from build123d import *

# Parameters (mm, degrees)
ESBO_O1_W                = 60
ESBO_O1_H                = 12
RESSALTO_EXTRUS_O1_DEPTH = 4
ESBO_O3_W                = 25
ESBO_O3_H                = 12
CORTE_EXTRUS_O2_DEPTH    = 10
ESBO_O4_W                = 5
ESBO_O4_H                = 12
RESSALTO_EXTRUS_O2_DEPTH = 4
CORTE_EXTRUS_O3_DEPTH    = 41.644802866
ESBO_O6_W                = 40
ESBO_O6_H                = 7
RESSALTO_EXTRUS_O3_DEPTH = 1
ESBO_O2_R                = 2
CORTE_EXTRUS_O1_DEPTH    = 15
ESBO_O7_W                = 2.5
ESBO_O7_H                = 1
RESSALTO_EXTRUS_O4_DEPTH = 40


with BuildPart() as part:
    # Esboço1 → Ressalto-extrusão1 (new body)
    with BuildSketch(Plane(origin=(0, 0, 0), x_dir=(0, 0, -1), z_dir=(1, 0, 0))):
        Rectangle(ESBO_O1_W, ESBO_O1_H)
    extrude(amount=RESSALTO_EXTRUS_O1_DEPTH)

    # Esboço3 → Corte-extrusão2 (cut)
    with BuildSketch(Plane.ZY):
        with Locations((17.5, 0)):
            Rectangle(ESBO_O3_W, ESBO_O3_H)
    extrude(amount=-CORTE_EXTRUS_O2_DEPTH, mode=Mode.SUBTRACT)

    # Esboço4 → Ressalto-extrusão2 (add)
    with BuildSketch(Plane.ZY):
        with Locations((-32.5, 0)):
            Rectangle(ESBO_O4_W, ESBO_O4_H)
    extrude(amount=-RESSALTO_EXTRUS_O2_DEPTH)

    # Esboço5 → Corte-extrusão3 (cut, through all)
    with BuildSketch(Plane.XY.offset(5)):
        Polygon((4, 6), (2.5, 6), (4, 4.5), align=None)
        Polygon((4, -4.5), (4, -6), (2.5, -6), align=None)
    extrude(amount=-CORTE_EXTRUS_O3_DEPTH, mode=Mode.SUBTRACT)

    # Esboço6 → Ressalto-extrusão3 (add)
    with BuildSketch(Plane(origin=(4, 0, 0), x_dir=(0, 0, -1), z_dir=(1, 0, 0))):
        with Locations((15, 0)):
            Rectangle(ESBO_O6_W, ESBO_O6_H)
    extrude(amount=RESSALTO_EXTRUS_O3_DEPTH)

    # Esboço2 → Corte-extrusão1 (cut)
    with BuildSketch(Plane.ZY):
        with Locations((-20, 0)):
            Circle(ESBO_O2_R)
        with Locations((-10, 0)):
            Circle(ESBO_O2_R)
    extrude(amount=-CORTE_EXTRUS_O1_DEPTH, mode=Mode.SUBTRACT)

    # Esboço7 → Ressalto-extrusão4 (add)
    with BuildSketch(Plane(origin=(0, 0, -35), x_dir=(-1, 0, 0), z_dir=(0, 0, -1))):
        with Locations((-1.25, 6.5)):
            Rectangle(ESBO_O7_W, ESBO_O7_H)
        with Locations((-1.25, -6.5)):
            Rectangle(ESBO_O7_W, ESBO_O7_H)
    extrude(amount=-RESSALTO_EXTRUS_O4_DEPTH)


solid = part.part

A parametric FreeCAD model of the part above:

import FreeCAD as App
import Part
import Sketcher
from FreeCAD import Vector

doc = App.newDocument("Part")
body = doc.addObject("PartDesign::Body", "Body")

# Sketch on YZ plane
sketch1 = doc.addObject("Sketcher::SketchObject", "Sketch")
body.addObject(sketch1)
sketch1.AttachmentSupport = (doc.YZ_Plane, [""])
sketch1.MapMode = "FlatFace"
sketch1.addGeometry([
    Part.LineSegment(Vector(6, 30, 0), Vector(-6, 30, 0)),
    Part.LineSegment(Vector(-6, 30, 0), Vector(-6, -30, 0)),
    Part.LineSegment(Vector(-6, -30, 0), Vector(6, -30, 0)),
    Part.LineSegment(Vector(6, -30, 0), Vector(6, 30, 0)),
], False)
sketch1.addConstraint([
    Sketcher.Constraint("Coincident", 0, 2, 1, 1),
    Sketcher.Constraint("Coincident", 1, 2, 2, 1),
    Sketcher.Constraint("Coincident", 2, 2, 3, 1),
    Sketcher.Constraint("Coincident", 3, 2, 0, 1),
    Sketcher.Constraint("Horizontal", 0),
    Sketcher.Constraint("Vertical", 1),
    Sketcher.Constraint("Horizontal", 2),
    Sketcher.Constraint("Vertical", 3),
    Sketcher.Constraint("Symmetric", 0, 2, 2, 2, -1, 1),
    Sketcher.Constraint("DistanceX", 0, 2, 0, 1, 12.0),
    Sketcher.Constraint("DistanceY", 1, 2, 1, 1, 60.0),
])
pad1 = doc.addObject("PartDesign::Pad", "Pad")
body.addObject(pad1)
pad1.Profile = sketch1
pad1.Length = 4

# Sketch on YZ plane
sketch2 = doc.addObject("Sketcher::SketchObject", "Sketch001")
body.addObject(sketch2)
sketch2.AttachmentSupport = (doc.YZ_Plane, [""])
sketch2.MapMode = "FlatFace"
sketch2.addGeometry([
    Part.LineSegment(Vector(6, 5, 0), Vector(-6, 5, 0)),
    Part.LineSegment(Vector(-6, 5, 0), Vector(-6, 30, 0)),
    Part.LineSegment(Vector(-6, 30, 0), Vector(6, 30, 0)),
    Part.LineSegment(Vector(6, 30, 0), Vector(6, 5, 0)),
], False)
sketch2.addConstraint([
    Sketcher.Constraint("Coincident", 0, 2, 1, 1),
    Sketcher.Constraint("Coincident", 1, 2, 2, 1),
    Sketcher.Constraint("Coincident", 2, 2, 3, 1),
    Sketcher.Constraint("Coincident", 3, 2, 0, 1),
    Sketcher.Constraint("Horizontal", 0),
    Sketcher.Constraint("Vertical", 1),
    Sketcher.Constraint("Horizontal", 2),
    Sketcher.Constraint("Vertical", 3),
    Sketcher.Constraint("DistanceX", 0, 2, 0, 1, 12.0),
    Sketcher.Constraint("DistanceY", 1, 1, 1, 2, 25.0),
    Sketcher.Constraint("DistanceX", 0, 2, -1, 1, 6.0),
    Sketcher.Constraint("DistanceY", -1, 1, 0, 2, 5.0),
])
pocket1 = doc.addObject("PartDesign::Pocket", "Pocket")
body.addObject(pocket1)
pocket1.Profile = sketch2
pocket1.Length = 10
pocket1.Reversed = True

# Sketch on YZ plane
sketch3 = doc.addObject("Sketcher::SketchObject", "Sketch002")
body.addObject(sketch3)
sketch3.AttachmentSupport = (doc.YZ_Plane, [""])
sketch3.MapMode = "FlatFace"
sketch3.addGeometry([
    Part.LineSegment(Vector(6, -35, 0), Vector(-6, -35, 0)),
    Part.LineSegment(Vector(-6, -35, 0), Vector(-6, -30, 0)),
    Part.LineSegment(Vector(-6, -30, 0), Vector(6, -30, 0)),
    Part.LineSegment(Vector(6, -30, 0), Vector(6, -35, 0)),
], False)
sketch3.addConstraint([
    Sketcher.Constraint("Coincident", 0, 2, 1, 1),
    Sketcher.Constraint("Coincident", 1, 2, 2, 1),
    Sketcher.Constraint("Coincident", 2, 2, 3, 1),
    Sketcher.Constraint("Coincident", 3, 2, 0, 1),
    Sketcher.Constraint("Horizontal", 0),
    Sketcher.Constraint("Vertical", 1),
    Sketcher.Constraint("Horizontal", 2),
    Sketcher.Constraint("Vertical", 3),
    Sketcher.Constraint("DistanceX", 0, 2, 0, 1, 12.0),
    Sketcher.Constraint("DistanceY", 1, 1, 1, 2, 5.0),
    Sketcher.Constraint("DistanceX", 0, 2, -1, 1, 6.0),
    Sketcher.Constraint("DistanceY", 0, 2, -1, 1, 35.0),
])
pad2 = doc.addObject("PartDesign::Pad", "Pad001")
body.addObject(pad2)
pad2.Profile = sketch3
pad2.Length = 4

# Sketch on XY plane
sketch4 = doc.addObject("Sketcher::SketchObject", "Sketch003")
body.addObject(sketch4)
sketch4.AttachmentSupport = (doc.XY_Plane, [""])
sketch4.MapMode = "FlatFace"
sketch4.AttachmentOffset = App.Placement(Vector(0, 0, 5), App.Rotation())
sketch4.addGeometry([
    Part.LineSegment(Vector(4, 6, 0), Vector(2.5, 6, 0)),  # 0
    Part.LineSegment(Vector(2.5, 6, 0), Vector(4, 4.5, 0)),  # 1
    Part.LineSegment(Vector(4, 4.5, 0), Vector(4, 6, 0)),  # 2
    Part.LineSegment(Vector(4, -6, 0), Vector(4, -4.5, 0)),  # 3
    Part.LineSegment(Vector(4, -4.5, 0), Vector(2.5, -6, 0)),  # 4
    Part.LineSegment(Vector(2.5, -6, 0), Vector(4, -6, 0)),  # 5
], False)
sketch4.addConstraint([
    Sketcher.Constraint("Coincident", 0, 2, 1, 1),
    Sketcher.Constraint("Coincident", 1, 2, 2, 1),
    Sketcher.Constraint("Coincident", 2, 2, 0, 1),
    Sketcher.Constraint("Coincident", 3, 2, 4, 1),
    Sketcher.Constraint("Coincident", 4, 2, 5, 1),
    Sketcher.Constraint("Coincident", 5, 2, 3, 1),
    Sketcher.Constraint("Horizontal", 0),
    Sketcher.Constraint("Vertical", 2),
    Sketcher.Constraint("Vertical", 3),
    Sketcher.Constraint("Horizontal", 5),
    Sketcher.Constraint("Symmetric", 1, 2, 3, 2, -1),
    Sketcher.Constraint("Symmetric", 0, 2, 4, 2, -1),
    Sketcher.Constraint("Perpendicular", 1, 4),
    Sketcher.Constraint("DistanceX", 0, 2, 0, 1, 1.5),
    Sketcher.Constraint("DistanceY", -1, 1, 0, 2, 6.0),
    Sketcher.Constraint("DistanceX", -1, 1, 1, 2, 4.0),
])
pocket2 = doc.addObject("PartDesign::Pocket", "Pocket001")
body.addObject(pocket2)
pocket2.Profile = sketch4
pocket2.Type = "ThroughAll"

# Sketch on YZ plane
sketch5 = doc.addObject("Sketcher::SketchObject", "Sketch004")
body.addObject(sketch5)
sketch5.AttachmentSupport = (doc.YZ_Plane, [""])
sketch5.MapMode = "FlatFace"
sketch5.AttachmentOffset = App.Placement(Vector(0, 0, 4), App.Rotation())
sketch5.addGeometry([
    Part.LineSegment(Vector(4, 5, 0), Vector(-4, 5, 0)),
    Part.LineSegment(Vector(-4, 5, 0), Vector(-4, -35, 0)),
    Part.LineSegment(Vector(-4, -35, 0), Vector(4, -35, 0)),
    Part.LineSegment(Vector(4, -35, 0), Vector(4, 5, 0)),
], False)
sketch5.addConstraint([
    Sketcher.Constraint("Coincident", 0, 2, 1, 1),
    Sketcher.Constraint("Coincident", 1, 2, 2, 1),
    Sketcher.Constraint("Coincident", 2, 2, 3, 1),
    Sketcher.Constraint("Coincident", 3, 2, 0, 1),
    Sketcher.Constraint("Horizontal", 0),
    Sketcher.Constraint("Vertical", 1),
    Sketcher.Constraint("Horizontal", 2),
    Sketcher.Constraint("Vertical", 3),
    Sketcher.Constraint("DistanceX", 0, 2, 0, 1, 7.0),
    Sketcher.Constraint("DistanceY", 1, 2, 1, 1, 40.0),
    Sketcher.Constraint("DistanceY", -1, 1, 0, 2, 5.0),
    Sketcher.Constraint("DistanceX", 0, 2, -1, 1, 3.5),
])
pad3 = doc.addObject("PartDesign::Pad", "Pad002")
body.addObject(pad3)
pad3.Profile = sketch5
pad3.Length = 1

# Sketch on YZ plane
sketch6 = doc.addObject("Sketcher::SketchObject", "Sketch005")
body.addObject(sketch6)
sketch6.AttachmentSupport = (doc.YZ_Plane, [""])
sketch6.MapMode = "FlatFace"
sketch6.addGeometry([
    Part.Circle(Vector(0, -20, 0), Vector(0, 0, 1), 2),
    Part.Circle(Vector(0, -10, 0), Vector(0, 0, 1), 2),
], False)
sketch6.addConstraint([
    Sketcher.Constraint("Equal", 0, 1),
    Sketcher.Constraint("PointOnObject", 0, 3, -2),
    Sketcher.Constraint("PointOnObject", 1, 3, -2),
    Sketcher.Constraint("Diameter", 0, 4.0),
    Sketcher.Constraint("DistanceY", 0, 3, -1, 1, 20.0),
    Sketcher.Constraint("DistanceY", 1, 3, -1, 1, 10.0),
])
pocket3 = doc.addObject("PartDesign::Pocket", "Pocket002")
body.addObject(pocket3)
pocket3.Profile = sketch6
pocket3.Length = 15
pocket3.Reversed = True

# Sketch on XY plane
sketch7 = doc.addObject("Sketcher::SketchObject", "Sketch006")
body.addObject(sketch7)
sketch7.AttachmentSupport = (doc.XY_Plane, [""])
sketch7.MapMode = "FlatFace"
sketch7.AttachmentOffset = App.Placement(Vector(0, 0, -35), App.Rotation())
sketch7.addGeometry([
    Part.LineSegment(Vector(2.5, 7, 0), Vector(2.5, 6, 0)),  # 0
    Part.LineSegment(Vector(2.5, 6, 0), Vector(0, 6, 0)),  # 1
    Part.LineSegment(Vector(0, 6, 0), Vector(0, 7, 0)),  # 2
    Part.LineSegment(Vector(0, 7, 0), Vector(2.5, 7, 0)),  # 3
    Part.LineSegment(Vector(2.5, -6, 0), Vector(2.5, -7, 0)),  # 4
    Part.LineSegment(Vector(2.5, -7, 0), Vector(0, -7, 0)),  # 5
    Part.LineSegment(Vector(0, -7, 0), Vector(0, -6, 0)),  # 6
    Part.LineSegment(Vector(0, -6, 0), Vector(2.5, -6, 0)),  # 7
], False)
sketch7.addConstraint([
    Sketcher.Constraint("Coincident", 0, 2, 1, 1),
    Sketcher.Constraint("Coincident", 1, 2, 2, 1),
    Sketcher.Constraint("Coincident", 2, 2, 3, 1),
    Sketcher.Constraint("Coincident", 3, 2, 0, 1),
    Sketcher.Constraint("Coincident", 4, 2, 5, 1),
    Sketcher.Constraint("Coincident", 5, 2, 6, 1),
    Sketcher.Constraint("Coincident", 6, 2, 7, 1),
    Sketcher.Constraint("Coincident", 7, 2, 4, 1),
    Sketcher.Constraint("Vertical", 0),
    Sketcher.Constraint("Horizontal", 1),
    Sketcher.Constraint("Vertical", 2),
    Sketcher.Constraint("Horizontal", 3),
    Sketcher.Constraint("Vertical", 4),
    Sketcher.Constraint("Horizontal", 5),
    Sketcher.Constraint("Vertical", 6),
    Sketcher.Constraint("Horizontal", 7),
    Sketcher.Constraint("Symmetric", 2, 2, 5, 2, -1, 1),
    Sketcher.Constraint("Symmetric", 1, 2, 6, 2, -1),
    Sketcher.Constraint("Vertical", 3, 2, 4, 2),
    Sketcher.Constraint("DistanceY", 0, 2, 0, 1, 1.0),
    Sketcher.Constraint("DistanceX", 1, 2, 1, 1, 2.5),
    Sketcher.Constraint("DistanceY", -1, 1, 0, 2, 6.0),
])
pad4 = doc.addObject("PartDesign::Pad", "Pad003")
body.addObject(pad4)
pad4.Profile = sketch7
pad4.Length = 40

doc.recompute()
